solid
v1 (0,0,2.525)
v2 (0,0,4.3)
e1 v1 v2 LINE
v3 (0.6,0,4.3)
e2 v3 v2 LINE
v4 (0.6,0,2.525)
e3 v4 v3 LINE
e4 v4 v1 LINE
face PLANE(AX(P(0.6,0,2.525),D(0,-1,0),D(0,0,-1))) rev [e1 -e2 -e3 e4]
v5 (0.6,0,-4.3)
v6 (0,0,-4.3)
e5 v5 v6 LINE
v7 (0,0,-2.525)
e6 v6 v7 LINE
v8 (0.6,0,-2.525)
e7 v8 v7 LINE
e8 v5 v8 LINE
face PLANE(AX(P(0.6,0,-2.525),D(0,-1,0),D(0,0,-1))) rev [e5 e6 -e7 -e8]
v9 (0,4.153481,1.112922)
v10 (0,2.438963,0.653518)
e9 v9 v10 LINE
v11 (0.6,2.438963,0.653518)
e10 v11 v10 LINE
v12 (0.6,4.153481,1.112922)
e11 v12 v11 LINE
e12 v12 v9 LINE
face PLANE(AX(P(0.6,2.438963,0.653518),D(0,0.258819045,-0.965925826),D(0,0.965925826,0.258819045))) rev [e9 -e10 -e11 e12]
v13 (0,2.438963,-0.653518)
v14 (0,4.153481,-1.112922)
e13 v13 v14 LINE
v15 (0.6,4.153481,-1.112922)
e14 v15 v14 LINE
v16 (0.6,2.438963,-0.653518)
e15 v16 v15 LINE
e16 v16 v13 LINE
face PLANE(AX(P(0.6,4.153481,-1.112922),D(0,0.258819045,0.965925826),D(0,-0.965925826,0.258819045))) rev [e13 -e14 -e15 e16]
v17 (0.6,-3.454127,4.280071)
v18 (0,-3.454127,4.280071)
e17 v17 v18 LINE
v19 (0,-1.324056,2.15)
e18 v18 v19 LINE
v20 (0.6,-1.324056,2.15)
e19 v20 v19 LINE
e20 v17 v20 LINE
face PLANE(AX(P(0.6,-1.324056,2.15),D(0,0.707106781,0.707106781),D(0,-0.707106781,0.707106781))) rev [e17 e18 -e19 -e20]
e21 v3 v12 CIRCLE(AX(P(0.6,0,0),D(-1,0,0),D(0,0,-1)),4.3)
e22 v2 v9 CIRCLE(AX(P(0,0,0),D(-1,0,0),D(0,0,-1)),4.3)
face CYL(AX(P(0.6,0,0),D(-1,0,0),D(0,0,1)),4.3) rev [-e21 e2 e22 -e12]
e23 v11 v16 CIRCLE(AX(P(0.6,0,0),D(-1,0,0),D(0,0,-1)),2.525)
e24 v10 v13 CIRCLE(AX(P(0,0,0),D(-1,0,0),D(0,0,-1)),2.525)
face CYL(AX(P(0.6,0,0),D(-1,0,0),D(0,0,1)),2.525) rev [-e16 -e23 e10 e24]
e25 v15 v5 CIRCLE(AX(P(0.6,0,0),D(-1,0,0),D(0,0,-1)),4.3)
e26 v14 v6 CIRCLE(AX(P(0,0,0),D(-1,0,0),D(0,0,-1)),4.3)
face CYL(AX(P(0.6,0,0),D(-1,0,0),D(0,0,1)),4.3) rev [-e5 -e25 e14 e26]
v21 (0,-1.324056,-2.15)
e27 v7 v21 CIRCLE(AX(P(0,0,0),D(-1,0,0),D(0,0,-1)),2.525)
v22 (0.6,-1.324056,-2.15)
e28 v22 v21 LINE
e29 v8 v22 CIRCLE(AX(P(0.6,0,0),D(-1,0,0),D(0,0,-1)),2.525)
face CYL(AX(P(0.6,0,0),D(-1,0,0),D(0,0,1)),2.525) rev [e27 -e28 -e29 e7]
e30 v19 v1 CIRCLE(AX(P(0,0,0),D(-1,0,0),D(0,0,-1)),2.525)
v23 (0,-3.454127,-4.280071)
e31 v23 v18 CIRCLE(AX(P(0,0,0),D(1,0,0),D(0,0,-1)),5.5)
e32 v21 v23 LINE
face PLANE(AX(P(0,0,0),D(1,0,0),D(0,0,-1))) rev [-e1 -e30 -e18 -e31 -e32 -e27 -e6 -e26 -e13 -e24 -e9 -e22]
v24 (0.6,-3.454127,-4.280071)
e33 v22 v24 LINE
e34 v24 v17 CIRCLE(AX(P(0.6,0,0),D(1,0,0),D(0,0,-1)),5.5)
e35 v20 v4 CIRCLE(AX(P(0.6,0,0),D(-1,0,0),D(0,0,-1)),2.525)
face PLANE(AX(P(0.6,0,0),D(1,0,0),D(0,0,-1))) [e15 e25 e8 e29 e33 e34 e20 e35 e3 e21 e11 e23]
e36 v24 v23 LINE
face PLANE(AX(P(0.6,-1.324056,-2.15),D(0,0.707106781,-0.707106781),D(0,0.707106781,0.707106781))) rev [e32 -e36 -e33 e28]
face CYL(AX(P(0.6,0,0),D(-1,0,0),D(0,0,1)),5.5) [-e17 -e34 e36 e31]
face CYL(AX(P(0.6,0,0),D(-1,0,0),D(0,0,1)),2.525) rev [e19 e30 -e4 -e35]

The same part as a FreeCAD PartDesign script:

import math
import FreeCAD as App
import Part
import Sketcher
from FreeCAD import Vector
Q = App.Units.Quantity

doc = App.newDocument("Part")
body = doc.addObject("PartDesign::Body", "Body")

sketch1 = body.newObject("Sketcher::SketchObject", "Sketch")
sketch1.AttachmentSupport = (doc.getObject("YZ_Plane"), [""])
sketch1.MapMode = "FlatFace"
sketch1.addGeometry([
    Part.LineSegment(Vector(0, 2.5, 0), Vector(0, 4.3, 0)),
    Part.ArcOfCircle(Part.Circle(Vector(0, 0, 0), Vector(0, 0, 1), 4.3), math.radians(15), math.radians(90)),
    Part.LineSegment(Vector(4.2, 1.1, 0), Vector(2.4, 0.7, 0)),
    Part.ArcOfCircle(Part.Circle(Vector(0, 0, 0), Vector(0, 0, 1), 2.5), math.radians(-15), math.radians(15)),
    Part.LineSegment(Vector(2.4, -0.7, 0), Vector(4.2, -1.1, 0)),
    Part.ArcOfCircle(Part.Circle(Vector(0, 0, 0), Vector(0, 0, 1), 4.3), math.radians(-90), math.radians(-15)),
    Part.LineSegment(Vector(0, -4.3, 0), Vector(0, -2.5, 0)),
    Part.ArcOfCircle(Part.Circle(Vector(0, 0, 0), Vector(0, 0, 1), 2.5), math.radians(-122), math.radians(-90)),
    Part.LineSegment(Vector(-1.3, -2.1, 0), Vector(-3.5, -4.3, 0)),
    Part.ArcOfCircle(Part.Circle(Vector(0, 0, 0), Vector(0, 0, 1), 5.5), math.radians(-129), math.radians(129)),
    Part.LineSegment(Vector(-3.5, 4.3, 0), Vector(-1.3, 2.1, 0)),
    Part.ArcOfCircle(Part.Circle(Vector(0, 0, 0), Vector(0, 0, 1), 2.5), math.radians(90), math.radians(122)),
], False)
sketch1.addConstraint([
    Sketcher.Constraint("Coincident", 0, 2, 1, 2),
    Sketcher.Constraint("Coincident", 1, 1, 2, 1),
    Sketcher.Constraint("Coincident", 2, 2, 3, 2),
    Sketcher.Constraint("Coincident", 3, 1, 4, 1),
    Sketcher.Constraint("Coincident", 4, 2, 5, 2),
    Sketcher.Constraint("Coincident", 5, 1, 6, 1),
    Sketcher.Constraint("Coincident", 6, 2, 7, 2),
    Sketcher.Constraint("Coincident", 7, 1, 8, 1),
    Sketcher.Constraint("Coincident", 8, 2, 9, 1),
    Sketcher.Constraint("Coincident", 9, 2, 10, 1),
    Sketcher.Constraint("Coincident", 10, 2, 11, 2),
    Sketcher.Constraint("Coincident", 11, 1, 0, 1),
    Sketcher.Constraint("Vertical", 0),
    Sketcher.Constraint("Vertical", 6),
    Sketcher.Constraint("Coincident", 1, 3, -1, 1),
    Sketcher.Constraint("Coincident", 3, 3, -1, 1),
    Sketcher.Constraint("Coincident", 5, 3, -1, 1),
    Sketcher.Constraint("Coincident", 7, 3, -1, 1),
    Sketcher.Constraint("Coincident", 9, 3, -1, 1),
    Sketcher.Constraint("Coincident", 11, 3, -1, 1),
    Sketcher.Constraint("Equal", 1, 5),
    Sketcher.Constraint("Equal", 3, 7),
    Sketcher.Constraint("Equal", 7, 11),
    Sketcher.Constraint("PointOnObject", 0, 2, -2),
    Sketcher.Constraint("PointOnObject", 5, 1, -2),
    Sketcher.Constraint("Perpendicular", 8, 10),
    Sketcher.Constraint("Vertical", 2, 2, 3, 1),
    Sketcher.Constraint("Vertical", 1, 1, 4, 2),
    Sketcher.Constraint("Vertical", 8, 2, 9, 2),
    Sketcher.Constraint("Vertical", 7, 1, 10, 2),
    Sketcher.Constraint("Radius", 1, Q("4.3 mm")),
    Sketcher.Constraint("Radius", 9, Q("5.5 mm")),
    Sketcher.Constraint("Angle", 2, Q("-165 deg")),
    Sketcher.Constraint("Radius", 3, Q("2.525 mm")),
    Sketcher.Constraint("DistanceY", 7, 1, -1, 1, Q("2.15 mm")),
    Sketcher.Constraint("DistanceX", -1, 1, 1, 1, Q("4.153481 mm")),
])
pad1 = body.newObject("PartDesign::Pad", "Pad")
pad1.Profile = sketch1
pad1.Length = 0.6

doc.recompute()
